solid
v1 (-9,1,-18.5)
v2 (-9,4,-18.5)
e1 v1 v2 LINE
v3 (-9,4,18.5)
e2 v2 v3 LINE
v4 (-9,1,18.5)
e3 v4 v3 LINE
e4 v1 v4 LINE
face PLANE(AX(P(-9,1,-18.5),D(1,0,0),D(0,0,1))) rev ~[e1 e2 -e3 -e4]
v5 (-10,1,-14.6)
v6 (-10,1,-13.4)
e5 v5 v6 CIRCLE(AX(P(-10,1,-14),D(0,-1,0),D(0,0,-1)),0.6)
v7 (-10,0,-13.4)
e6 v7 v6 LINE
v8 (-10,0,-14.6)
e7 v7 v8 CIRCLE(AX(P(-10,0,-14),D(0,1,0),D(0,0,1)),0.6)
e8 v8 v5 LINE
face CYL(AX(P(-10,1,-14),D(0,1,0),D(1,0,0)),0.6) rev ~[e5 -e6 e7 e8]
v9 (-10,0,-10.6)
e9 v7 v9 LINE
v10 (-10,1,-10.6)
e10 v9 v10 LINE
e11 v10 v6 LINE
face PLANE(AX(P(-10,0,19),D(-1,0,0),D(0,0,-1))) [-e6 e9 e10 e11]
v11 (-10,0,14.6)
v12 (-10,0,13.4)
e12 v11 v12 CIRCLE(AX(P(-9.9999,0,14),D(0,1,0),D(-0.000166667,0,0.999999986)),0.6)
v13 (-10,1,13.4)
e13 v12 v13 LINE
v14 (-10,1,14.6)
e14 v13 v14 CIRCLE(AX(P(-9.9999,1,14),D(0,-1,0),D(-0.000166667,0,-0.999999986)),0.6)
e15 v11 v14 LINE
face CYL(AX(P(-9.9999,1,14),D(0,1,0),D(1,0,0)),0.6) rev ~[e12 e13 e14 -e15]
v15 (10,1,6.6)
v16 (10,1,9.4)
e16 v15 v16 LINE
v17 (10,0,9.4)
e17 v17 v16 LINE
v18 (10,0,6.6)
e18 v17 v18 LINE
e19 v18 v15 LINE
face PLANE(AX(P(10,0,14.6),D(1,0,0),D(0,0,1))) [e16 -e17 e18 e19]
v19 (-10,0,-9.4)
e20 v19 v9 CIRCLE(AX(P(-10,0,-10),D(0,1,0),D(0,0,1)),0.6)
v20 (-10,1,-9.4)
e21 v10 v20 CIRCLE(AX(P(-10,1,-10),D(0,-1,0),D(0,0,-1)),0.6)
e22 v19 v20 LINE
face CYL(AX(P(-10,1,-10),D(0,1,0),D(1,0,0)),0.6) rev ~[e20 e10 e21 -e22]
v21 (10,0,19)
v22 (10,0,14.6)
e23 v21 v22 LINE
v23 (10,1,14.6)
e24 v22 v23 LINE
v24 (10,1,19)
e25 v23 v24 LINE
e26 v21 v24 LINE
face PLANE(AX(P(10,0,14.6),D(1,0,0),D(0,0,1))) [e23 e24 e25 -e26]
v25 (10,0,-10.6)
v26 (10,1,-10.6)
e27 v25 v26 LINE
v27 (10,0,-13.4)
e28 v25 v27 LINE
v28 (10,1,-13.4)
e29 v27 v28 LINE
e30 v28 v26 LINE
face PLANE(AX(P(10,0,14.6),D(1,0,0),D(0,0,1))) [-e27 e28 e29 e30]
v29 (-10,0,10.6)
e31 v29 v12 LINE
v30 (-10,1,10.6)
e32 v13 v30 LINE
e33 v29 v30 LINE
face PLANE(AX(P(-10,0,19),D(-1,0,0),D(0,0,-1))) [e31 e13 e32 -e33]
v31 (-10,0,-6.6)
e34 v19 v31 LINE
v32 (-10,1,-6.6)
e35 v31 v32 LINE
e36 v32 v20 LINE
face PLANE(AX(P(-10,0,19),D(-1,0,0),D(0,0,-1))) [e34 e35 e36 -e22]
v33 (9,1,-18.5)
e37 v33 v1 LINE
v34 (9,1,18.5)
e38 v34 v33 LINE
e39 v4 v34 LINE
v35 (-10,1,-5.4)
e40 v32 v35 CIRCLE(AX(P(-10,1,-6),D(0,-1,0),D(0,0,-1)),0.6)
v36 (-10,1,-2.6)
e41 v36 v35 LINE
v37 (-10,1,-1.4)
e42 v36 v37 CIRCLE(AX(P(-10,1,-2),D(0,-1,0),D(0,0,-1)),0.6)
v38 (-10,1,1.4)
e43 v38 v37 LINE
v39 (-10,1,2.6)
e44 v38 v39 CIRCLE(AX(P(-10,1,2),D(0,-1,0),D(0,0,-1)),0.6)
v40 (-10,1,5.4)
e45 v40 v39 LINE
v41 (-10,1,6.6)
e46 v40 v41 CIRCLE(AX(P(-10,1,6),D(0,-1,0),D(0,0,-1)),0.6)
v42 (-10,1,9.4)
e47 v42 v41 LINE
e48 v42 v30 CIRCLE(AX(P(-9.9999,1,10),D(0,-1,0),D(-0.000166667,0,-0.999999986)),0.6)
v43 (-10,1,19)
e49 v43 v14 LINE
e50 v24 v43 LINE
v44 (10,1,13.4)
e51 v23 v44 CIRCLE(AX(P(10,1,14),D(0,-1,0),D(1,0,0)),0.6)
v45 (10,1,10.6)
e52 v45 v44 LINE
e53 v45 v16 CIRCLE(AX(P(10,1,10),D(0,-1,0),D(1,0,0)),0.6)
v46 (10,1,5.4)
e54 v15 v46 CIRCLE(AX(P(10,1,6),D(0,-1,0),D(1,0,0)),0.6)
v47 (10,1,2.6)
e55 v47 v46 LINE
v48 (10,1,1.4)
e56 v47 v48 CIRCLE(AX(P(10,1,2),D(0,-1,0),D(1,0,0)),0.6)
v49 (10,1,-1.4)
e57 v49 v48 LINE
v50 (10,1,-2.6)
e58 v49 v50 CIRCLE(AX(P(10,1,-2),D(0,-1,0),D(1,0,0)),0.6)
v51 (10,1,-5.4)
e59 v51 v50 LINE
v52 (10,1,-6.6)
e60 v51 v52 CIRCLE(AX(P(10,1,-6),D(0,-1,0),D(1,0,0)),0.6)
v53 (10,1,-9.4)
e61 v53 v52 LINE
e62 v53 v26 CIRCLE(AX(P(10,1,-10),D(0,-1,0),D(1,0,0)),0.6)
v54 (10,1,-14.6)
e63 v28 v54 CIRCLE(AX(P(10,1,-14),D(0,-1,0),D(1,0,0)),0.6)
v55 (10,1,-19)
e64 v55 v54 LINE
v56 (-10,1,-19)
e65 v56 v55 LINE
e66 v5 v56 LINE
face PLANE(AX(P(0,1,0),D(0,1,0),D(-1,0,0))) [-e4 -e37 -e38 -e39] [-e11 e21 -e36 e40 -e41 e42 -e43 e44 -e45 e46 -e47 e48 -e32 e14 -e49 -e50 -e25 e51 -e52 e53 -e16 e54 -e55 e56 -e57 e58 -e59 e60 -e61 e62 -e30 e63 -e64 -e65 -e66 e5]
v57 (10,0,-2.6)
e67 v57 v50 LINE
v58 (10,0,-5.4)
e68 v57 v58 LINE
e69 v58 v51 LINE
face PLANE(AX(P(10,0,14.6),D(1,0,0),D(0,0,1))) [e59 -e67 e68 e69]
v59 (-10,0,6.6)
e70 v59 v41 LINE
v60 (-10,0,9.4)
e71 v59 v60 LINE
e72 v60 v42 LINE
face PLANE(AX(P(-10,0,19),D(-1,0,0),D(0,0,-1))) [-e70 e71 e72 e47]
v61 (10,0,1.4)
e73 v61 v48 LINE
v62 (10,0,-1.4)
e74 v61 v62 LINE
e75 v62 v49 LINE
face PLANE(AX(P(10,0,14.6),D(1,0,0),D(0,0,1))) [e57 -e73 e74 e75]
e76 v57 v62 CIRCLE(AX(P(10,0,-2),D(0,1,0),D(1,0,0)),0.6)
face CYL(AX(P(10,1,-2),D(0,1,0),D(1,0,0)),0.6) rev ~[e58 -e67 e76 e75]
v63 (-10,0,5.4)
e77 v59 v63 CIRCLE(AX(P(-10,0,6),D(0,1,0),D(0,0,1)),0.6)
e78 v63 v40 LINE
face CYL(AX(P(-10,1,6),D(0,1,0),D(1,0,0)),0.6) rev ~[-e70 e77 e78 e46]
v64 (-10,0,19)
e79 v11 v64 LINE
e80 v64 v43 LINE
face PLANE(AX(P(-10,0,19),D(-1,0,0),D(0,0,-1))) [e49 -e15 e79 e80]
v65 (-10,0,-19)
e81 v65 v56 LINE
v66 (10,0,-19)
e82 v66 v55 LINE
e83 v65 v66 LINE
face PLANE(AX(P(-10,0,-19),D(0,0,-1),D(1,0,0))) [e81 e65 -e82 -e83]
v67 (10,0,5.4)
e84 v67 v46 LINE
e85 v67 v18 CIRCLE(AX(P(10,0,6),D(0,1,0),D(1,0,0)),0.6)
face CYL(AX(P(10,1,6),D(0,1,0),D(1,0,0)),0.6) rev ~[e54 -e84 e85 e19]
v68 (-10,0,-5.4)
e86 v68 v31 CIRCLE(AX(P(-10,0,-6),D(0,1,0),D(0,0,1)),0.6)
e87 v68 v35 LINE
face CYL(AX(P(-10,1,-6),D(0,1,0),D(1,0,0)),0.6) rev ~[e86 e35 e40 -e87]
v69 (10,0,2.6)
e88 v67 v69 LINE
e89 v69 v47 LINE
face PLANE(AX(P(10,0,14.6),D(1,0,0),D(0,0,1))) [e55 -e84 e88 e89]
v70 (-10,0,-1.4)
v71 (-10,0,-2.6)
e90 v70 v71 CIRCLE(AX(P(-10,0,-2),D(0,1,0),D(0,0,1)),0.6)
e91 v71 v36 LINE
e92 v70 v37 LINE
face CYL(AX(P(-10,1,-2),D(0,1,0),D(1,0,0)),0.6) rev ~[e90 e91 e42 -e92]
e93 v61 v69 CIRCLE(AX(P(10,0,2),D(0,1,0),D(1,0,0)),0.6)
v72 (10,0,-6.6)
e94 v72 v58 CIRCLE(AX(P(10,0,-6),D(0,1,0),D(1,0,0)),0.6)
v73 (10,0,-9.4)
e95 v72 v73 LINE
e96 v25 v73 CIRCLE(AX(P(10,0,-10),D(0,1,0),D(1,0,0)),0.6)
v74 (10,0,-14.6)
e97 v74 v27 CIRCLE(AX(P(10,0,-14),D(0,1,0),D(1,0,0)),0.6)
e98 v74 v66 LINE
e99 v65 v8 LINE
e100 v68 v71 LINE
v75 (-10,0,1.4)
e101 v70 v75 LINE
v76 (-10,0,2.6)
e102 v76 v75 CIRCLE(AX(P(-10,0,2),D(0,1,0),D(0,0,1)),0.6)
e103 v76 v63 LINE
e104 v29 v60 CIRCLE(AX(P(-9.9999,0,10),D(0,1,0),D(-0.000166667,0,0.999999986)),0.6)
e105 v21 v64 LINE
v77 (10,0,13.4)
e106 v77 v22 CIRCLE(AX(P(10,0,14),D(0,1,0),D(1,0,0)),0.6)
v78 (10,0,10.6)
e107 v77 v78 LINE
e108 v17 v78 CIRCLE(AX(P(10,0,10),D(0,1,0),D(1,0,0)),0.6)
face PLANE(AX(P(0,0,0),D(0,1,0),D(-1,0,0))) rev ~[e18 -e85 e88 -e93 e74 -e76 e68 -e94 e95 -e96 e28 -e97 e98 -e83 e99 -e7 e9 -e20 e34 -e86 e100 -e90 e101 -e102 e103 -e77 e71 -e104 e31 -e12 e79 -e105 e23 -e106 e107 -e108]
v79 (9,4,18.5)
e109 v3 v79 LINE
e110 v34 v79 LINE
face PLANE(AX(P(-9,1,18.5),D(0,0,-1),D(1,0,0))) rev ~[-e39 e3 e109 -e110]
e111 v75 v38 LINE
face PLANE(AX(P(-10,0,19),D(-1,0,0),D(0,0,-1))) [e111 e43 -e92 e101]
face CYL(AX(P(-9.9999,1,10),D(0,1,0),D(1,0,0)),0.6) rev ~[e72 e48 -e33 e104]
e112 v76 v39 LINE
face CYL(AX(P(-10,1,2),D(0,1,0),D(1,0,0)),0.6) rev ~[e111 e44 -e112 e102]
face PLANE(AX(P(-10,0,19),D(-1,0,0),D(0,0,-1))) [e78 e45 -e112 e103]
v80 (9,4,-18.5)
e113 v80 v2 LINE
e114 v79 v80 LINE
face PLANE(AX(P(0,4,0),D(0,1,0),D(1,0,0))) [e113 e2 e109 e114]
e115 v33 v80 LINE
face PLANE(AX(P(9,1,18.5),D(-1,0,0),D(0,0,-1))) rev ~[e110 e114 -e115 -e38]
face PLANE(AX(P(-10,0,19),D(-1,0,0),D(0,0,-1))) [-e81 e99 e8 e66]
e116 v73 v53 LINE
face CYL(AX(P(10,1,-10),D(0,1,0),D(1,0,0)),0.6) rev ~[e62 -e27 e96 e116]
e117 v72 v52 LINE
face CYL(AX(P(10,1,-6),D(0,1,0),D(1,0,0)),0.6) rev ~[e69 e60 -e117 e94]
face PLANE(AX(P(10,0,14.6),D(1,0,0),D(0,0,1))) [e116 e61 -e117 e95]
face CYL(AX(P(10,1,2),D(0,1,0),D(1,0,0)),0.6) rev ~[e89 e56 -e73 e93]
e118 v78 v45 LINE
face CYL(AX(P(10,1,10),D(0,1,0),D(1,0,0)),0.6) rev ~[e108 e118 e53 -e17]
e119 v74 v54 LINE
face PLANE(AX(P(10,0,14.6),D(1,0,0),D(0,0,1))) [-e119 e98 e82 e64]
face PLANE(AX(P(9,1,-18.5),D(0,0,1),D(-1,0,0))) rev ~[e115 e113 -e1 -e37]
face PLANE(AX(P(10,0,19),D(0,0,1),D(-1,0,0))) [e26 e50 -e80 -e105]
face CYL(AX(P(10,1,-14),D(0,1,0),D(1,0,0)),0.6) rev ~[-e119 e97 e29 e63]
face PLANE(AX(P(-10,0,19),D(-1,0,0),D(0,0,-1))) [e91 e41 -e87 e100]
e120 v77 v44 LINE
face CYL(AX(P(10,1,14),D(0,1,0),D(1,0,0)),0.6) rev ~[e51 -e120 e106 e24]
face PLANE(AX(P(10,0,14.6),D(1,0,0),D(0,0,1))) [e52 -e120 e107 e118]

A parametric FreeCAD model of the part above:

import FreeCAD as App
import Part
import Sketcher


def add_polygon(sketch, points):
    """Adds a closed chain of lines whose ends are joined by coincident constraints."""
    first, n = sketch.GeometryCount, len(points)
    for a, b in zip(points, points[1:] + points[:1]):
        sketch.addGeometry(Part.LineSegment(App.Vector(*a, 0), App.Vector(*b, 0)), False)
    for i in range(n):
        sketch.addConstraint(Sketcher.Constraint("Coincident", first + i, 2, first + (i + 1) % n, 1))

doc = App.newDocument("Part")
body = doc.addObject("PartDesign::Body", "Body")

# Sketch on XZ plane
sketch1 = doc.addObject("Sketcher::SketchObject", "Sketch")
body.addObject(sketch1)
sketch1.AttachmentSupport = (doc.XZ_Plane, [""])
sketch1.MapMode = "FlatFace"
add_polygon(sketch1, [(-10, 19), (10, 19), (10, -19), (-10, -19)])  # lines 0-3
sketch1.addConstraint([
    Sketcher.Constraint("Horizontal", 0),
    Sketcher.Constraint("Vertical", 1),
    Sketcher.Constraint("Horizontal", 2),
    Sketcher.Constraint("Vertical", 3),
    Sketcher.Constraint("Symmetric", 0, 2, 2, 2, -1, 1),
    Sketcher.Constraint("DistanceX", 0, 1, 0, 2, 20.0),
    Sketcher.Constraint("DistanceY", 1, 2, 1, 1, 38.0),
])
pad1 = doc.addObject("PartDesign::Pad", "Pad")
body.addObject(pad1)
pad1.Profile = sketch1
pad1.Length = 1
pad1.Reversed = True

# Sketch on XZ plane
sketch2 = doc.addObject("Sketcher::SketchObject", "Sketch001")
body.addObject(sketch2)
sketch2.AttachmentSupport = (doc.XZ_Plane, [""])
sketch2.MapMode = "FlatFace"
sketch2.AttachmentOffset = App.Placement(App.Vector(0, 0, -1), App.Rotation())
sketch2.addGeometry([
    Part.Circle(App.Vector(-10, -14, 0), App.Vector(0, 0, 1), 0.6),  # 0
    Part.Circle(App.Vector(10, -14, 0), App.Vector(0, 0, 1), 0.6),  # 1
    Part.Circle(App.Vector(-10, -10, 0), App.Vector(0, 0, 1), 0.6),  # 2
    Part.Circle(App.Vector(10, -10, 0), App.Vector(0, 0, 1), 0.6),  # 3
    Part.Circle(App.Vector(-10, -6, 0), App.Vector(0, 0, 1), 0.6),  # 4
    Part.Circle(App.Vector(10, -6, 0), App.Vector(0, 0, 1), 0.6),  # 5
    Part.Circle(App.Vector(-10, -2, 0), App.Vector(0, 0, 1), 0.6),  # 6
    Part.Circle(App.Vector(10, -2, 0), App.Vector(0, 0, 1), 0.6),  # 7
    Part.Circle(App.Vector(-10, 2, 0), App.Vector(0, 0, 1), 0.6),  # 8
    Part.Circle(App.Vector(10, 2, 0), App.Vector(0, 0, 1), 0.6),  # 9
    Part.Circle(App.Vector(-10, 6, 0), App.Vector(0, 0, 1), 0.6),  # 10
    Part.Circle(App.Vector(10, 6, 0), App.Vector(0, 0, 1), 0.6),  # 11
    Part.Circle(App.Vector(-10, 10, 0), App.Vector(0, 0, 1), 0.6),  # 12
    Part.Circle(App.Vector(10, 10, 0), App.Vector(0, 0, 1), 0.6),  # 13
    Part.Circle(App.Vector(-10, 14, 0), App.Vector(0, 0, 1), 0.6),  # 14
    Part.Circle(App.Vector(10, 14, 0), App.Vector(0, 0, 1), 0.6),  # 15
], False)
sketch2.addConstraint([
    Sketcher.Constraint("Equal", 0, 1),
    Sketcher.Constraint("Equal", 1, 2),
    Sketcher.Constraint("Equal", 2, 3),
    Sketcher.Constraint("Equal", 3, 4),
    Sketcher.Constraint("Equal", 4, 5),
    Sketcher.Constraint("Equal", 5, 6),
    Sketcher.Constraint("Equal", 6, 7),
    Sketcher.Constraint("Equal", 7, 8),
    Sketcher.Constraint("Equal", 8, 9),
    Sketcher.Constraint("Equal", 9, 10),
    Sketcher.Constraint("Equal", 10, 11),
    Sketcher.Constraint("Equal", 11, 12),
    Sketcher.Constraint("Equal", 12, 13),
    Sketcher.Constraint("Equal", 13, 14),
    Sketcher.Constraint("Equal", 14, 15),
    Sketcher.Constraint("Symmetric", 7, 3, 8, 3, -1, 1),
    Sketcher.Constraint("Symmetric", 6, 3, 9, 3, -1, 1),
    Sketcher.Constraint("Symmetric", 5, 3, 10, 3, -1, 1),
    Sketcher.Constraint("Symmetric", 4, 3, 11, 3, -1, 1),
    Sketcher.Constraint("Symmetric", 3, 3, 12, 3, -1, 1),
    Sketcher.Constraint("Symmetric", 2, 3, 13, 3, -1, 1),
    Sketcher.Constraint("Symmetric", 1, 3, 14, 3, -1, 1),
    Sketcher.Constraint("Symmetric", 0, 3, 15, 3, -1, 1),
    Sketcher.Constraint("Symmetric", 0, 3, 1, 3, -2),
    Sketcher.Constraint("Symmetric", 2, 3, 3, 3, -2),
    Sketcher.Constraint("Symmetric", 4, 3, 5, 3, -2),
    Sketcher.Constraint("Symmetric", 6, 3, 7, 3, -2),
    Sketcher.Constraint("Vertical", 0, 3, 2, 3),
    Sketcher.Constraint("Vertical", 2, 3, 4, 3),
    Sketcher.Constraint("Vertical", 4, 3, 6, 3),
    Sketcher.Constraint("Diameter", 0, 1.2),
    Sketcher.Constraint("DistanceX", 0, 3, 1, 3, 20.0),
    Sketcher.Constraint("DistanceY", 0, 3, 2, 3, 4.0),
    Sketcher.Constraint("DistanceY", 2, 3, 4, 3, 4.0),
    Sketcher.Constraint("DistanceY", 4, 3, 6, 3, 4.0),
    Sketcher.Constraint("DistanceY", 6, 3, 8, 3, 4.0),
])
pocket1 = doc.addObject("PartDesign::Pocket", "Pocket")
body.addObject(pocket1)
pocket1.Profile = sketch2
pocket1.Length = 1
pocket1.Reversed = True

# Sketch on XZ plane
sketch3 = doc.addObject("Sketcher::SketchObject", "Sketch002")
body.addObject(sketch3)
sketch3.AttachmentSupport = (doc.XZ_Plane, [""])
sketch3.MapMode = "FlatFace"
sketch3.AttachmentOffset = App.Placement(App.Vector(0, 0, -1), App.Rotation())
add_polygon(sketch3, [(-9, -18), (-9, 18), (9, 18), (9, -18)])  # lines 0-3
sketch3.addConstraint([
    Sketcher.Constraint("Vertical", 0),
    Sketcher.Constraint("Horizontal", 1),
    Sketcher.Constraint("Vertical", 2),
    Sketcher.Constraint("Horizontal", 3),
    Sketcher.Constraint("Symmetric", 0, 2, 2, 2, -1, 1),
    Sketcher.Constraint("DistanceY", 0, 1, 0, 2, 37.0),
    Sketcher.Constraint("DistanceX", 1, 1, 1, 2, 18.0),
])
pad2 = doc.addObject("PartDesign::Pad", "Pad001")
body.addObject(pad2)
pad2.Profile = sketch3
pad2.Length = 3
pad2.Reversed = True

doc.recompute()
